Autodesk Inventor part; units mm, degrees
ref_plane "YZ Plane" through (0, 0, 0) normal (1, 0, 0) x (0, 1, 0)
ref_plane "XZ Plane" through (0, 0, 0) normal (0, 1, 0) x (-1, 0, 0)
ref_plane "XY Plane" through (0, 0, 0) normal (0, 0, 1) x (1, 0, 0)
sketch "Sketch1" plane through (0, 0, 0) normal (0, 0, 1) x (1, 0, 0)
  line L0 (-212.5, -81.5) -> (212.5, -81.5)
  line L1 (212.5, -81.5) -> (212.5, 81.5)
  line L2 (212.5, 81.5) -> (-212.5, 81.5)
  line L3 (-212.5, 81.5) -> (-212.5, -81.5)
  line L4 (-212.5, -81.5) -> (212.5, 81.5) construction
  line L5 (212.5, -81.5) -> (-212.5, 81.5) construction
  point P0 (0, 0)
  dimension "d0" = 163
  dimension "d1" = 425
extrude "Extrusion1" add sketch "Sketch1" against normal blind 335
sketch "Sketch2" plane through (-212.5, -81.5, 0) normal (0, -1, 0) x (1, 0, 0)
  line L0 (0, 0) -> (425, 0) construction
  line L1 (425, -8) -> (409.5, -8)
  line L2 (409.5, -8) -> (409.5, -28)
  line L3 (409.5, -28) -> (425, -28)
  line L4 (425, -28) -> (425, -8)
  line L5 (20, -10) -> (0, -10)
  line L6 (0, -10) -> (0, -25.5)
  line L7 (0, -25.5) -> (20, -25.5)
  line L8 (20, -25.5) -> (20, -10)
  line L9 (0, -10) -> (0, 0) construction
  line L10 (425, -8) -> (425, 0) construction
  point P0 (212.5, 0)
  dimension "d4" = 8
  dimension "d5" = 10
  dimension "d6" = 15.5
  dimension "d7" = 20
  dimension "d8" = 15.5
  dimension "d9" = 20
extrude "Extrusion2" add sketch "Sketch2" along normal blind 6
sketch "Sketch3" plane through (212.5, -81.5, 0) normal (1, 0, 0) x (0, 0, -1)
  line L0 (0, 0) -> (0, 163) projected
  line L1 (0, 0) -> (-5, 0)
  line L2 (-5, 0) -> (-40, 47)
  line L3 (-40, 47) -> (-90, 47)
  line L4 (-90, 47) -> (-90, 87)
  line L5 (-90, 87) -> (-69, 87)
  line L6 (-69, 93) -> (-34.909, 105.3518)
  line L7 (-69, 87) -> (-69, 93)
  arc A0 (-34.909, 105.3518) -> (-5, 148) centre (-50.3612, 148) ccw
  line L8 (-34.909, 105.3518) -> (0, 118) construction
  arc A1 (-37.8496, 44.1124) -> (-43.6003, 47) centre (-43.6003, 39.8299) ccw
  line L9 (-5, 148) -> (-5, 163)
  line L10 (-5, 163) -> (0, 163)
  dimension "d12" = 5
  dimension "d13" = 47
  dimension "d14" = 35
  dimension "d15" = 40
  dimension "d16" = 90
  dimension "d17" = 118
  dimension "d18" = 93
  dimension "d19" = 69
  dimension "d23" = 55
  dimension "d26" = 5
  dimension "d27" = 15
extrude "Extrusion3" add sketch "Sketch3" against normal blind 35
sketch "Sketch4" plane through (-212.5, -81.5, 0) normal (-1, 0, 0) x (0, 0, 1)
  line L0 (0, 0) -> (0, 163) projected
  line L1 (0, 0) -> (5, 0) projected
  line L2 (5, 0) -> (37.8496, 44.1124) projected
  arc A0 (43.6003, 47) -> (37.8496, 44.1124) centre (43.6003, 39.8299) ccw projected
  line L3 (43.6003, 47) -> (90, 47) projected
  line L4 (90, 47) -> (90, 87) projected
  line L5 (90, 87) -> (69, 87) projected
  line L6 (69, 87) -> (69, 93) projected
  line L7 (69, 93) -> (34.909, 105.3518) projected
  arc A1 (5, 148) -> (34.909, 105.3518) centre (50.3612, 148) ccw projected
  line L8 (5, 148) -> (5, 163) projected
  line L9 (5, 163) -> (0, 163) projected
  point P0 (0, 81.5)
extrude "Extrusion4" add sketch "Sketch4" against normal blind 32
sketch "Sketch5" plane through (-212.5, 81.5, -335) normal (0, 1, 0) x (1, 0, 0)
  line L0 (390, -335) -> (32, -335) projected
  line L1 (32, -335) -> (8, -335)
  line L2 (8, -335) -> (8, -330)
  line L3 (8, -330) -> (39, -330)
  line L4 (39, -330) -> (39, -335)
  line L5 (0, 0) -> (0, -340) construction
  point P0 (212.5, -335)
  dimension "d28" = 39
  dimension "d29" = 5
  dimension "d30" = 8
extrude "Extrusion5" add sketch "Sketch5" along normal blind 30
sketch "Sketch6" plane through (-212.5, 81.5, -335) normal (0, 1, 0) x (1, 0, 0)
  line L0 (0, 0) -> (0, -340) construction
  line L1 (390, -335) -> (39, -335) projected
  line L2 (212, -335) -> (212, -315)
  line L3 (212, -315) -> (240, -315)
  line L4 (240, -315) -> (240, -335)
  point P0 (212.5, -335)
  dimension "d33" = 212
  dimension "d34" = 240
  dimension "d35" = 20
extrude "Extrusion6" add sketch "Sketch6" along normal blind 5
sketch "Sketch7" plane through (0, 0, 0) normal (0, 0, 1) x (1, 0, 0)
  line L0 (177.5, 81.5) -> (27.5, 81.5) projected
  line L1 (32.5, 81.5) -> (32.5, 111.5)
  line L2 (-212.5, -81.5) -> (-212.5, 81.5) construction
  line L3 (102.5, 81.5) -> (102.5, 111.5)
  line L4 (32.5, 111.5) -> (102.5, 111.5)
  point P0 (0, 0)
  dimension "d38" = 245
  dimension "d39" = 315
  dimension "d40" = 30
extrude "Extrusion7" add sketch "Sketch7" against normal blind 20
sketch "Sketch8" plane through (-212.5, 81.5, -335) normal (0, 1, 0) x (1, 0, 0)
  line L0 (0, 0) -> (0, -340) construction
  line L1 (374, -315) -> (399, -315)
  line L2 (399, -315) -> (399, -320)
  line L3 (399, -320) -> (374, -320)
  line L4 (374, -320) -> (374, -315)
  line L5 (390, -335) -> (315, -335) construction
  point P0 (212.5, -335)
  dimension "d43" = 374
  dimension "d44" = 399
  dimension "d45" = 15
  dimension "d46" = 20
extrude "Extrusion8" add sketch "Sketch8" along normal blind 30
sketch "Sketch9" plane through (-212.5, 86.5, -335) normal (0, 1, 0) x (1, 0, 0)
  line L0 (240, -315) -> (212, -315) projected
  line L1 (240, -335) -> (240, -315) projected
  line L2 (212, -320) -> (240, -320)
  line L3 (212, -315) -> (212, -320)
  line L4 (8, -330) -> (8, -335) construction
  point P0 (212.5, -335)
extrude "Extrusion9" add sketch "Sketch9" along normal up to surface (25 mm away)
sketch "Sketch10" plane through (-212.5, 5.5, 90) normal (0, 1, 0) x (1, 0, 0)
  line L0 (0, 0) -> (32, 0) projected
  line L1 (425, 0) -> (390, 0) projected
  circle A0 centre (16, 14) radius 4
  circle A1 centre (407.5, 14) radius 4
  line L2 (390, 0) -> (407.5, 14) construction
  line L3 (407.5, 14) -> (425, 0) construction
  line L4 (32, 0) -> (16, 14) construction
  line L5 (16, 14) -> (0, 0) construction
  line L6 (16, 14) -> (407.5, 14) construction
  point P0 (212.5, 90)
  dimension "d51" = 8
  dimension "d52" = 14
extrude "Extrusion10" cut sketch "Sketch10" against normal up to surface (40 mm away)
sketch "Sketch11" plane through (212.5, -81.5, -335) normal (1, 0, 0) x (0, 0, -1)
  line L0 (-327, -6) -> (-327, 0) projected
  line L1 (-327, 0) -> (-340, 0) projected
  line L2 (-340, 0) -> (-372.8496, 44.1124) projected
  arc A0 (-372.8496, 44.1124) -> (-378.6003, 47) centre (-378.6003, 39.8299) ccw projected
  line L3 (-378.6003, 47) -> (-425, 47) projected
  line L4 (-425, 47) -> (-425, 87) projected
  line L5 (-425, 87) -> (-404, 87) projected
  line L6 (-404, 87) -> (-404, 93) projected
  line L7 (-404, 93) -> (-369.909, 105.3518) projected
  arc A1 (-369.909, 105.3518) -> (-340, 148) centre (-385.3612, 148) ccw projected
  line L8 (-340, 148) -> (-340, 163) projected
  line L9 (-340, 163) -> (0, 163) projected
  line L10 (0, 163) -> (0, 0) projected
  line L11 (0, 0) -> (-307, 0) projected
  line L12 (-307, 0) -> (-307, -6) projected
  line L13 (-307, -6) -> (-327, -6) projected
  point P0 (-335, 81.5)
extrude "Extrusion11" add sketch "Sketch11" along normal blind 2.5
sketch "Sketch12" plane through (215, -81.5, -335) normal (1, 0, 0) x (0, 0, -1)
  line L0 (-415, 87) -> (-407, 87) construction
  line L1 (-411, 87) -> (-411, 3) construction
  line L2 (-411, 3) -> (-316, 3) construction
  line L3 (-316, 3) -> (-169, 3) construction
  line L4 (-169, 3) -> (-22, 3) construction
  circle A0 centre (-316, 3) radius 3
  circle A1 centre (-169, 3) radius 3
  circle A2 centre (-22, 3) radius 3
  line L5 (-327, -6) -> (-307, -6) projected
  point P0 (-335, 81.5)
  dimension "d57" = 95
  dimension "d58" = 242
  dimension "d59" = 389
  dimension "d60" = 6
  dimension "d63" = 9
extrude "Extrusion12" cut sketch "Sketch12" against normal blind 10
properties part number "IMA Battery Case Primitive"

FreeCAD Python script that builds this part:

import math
import FreeCAD as App
import Part
import Sketcher
from FreeCAD import Vector


def add_polygon(sketch, points):
    """Adds a closed chain of lines whose ends are joined by coincident constraints."""
    first, n = sketch.GeometryCount, len(points)
    for a, b in zip(points, points[1:] + points[:1]):
        sketch.addGeometry(Part.LineSegment(App.Vector(*a, 0), App.Vector(*b, 0)), False)
    for i in range(n):
        sketch.addConstraint(Sketcher.Constraint("Coincident", first + i, 2, first + (i + 1) % n, 1))

doc = App.newDocument("Part")
body = doc.addObject("PartDesign::Body", "Body")

sketch1 = doc.addObject("Sketcher::SketchObject", "Sketch")
body.addObject(sketch1)
sketch1.AttachmentSupport = (doc.XY_Plane, [""])
sketch1.MapMode = "FlatFace"
add_polygon(sketch1, [(-212, 82), (-212, -82), (212, -82), (212, 82)])
sketch1.addConstraint([
    Sketcher.Constraint("Vertical", 0),
    Sketcher.Constraint("Horizontal", 1),
    Sketcher.Constraint("Vertical", 2),
    Sketcher.Constraint("Horizontal", 3),
    Sketcher.Constraint("Symmetric", 0, 2, 2, 2, -1, 1),
    Sketcher.Constraint("DistanceX", 1, 1, 1, 2, 425.0),
    Sketcher.Constraint("DistanceY", 0, 2, 0, 1, 163.0),
])
pad1 = doc.addObject("PartDesign::Pad", "Pad")
body.addObject(pad1)
pad1.Profile = sketch1
pad1.Length = 335
pad1.Reversed = True

sketch2 = doc.addObject("Sketcher::SketchObject", "Sketch001")
body.addObject(sketch2)
sketch2.AttachmentSupport = (doc.XZ_Plane, [""])
sketch2.MapMode = "FlatFace"
sketch2.AttachmentOffset = App.Placement(Vector(0, 0, 81.5), App.Rotation())
add_polygon(sketch2, [(212, -28), (212, -8), (197, -8), (197, -28)])
add_polygon(sketch2, [(-192, -26), (-192, -10), (-212, -10), (-212, -26)])
sketch2.addConstraint([
    Sketcher.Constraint("Vertical", 0),
    Sketcher.Constraint("Horizontal", 1),
    Sketcher.Constraint("Vertical", 2),
    Sketcher.Constraint("Horizontal", 3),
    Sketcher.Constraint("Vertical", 4),
    Sketcher.Constraint("Horizontal", 5),
    Sketcher.Constraint("Vertical", 6),
    Sketcher.Constraint("Horizontal", 7),
    Sketcher.Constraint("Equal", 7, 0),
    Sketcher.Constraint("Equal", 3, 4),
    Sketcher.Constraint("DistanceX", 5, 2, 5, 1, 20.0),
    Sketcher.Constraint("DistanceX", 1, 2, 1, 1, 15.5),
    Sketcher.Constraint("DistanceY", 0, 2, -1, 1, 8.0),
    Sketcher.Constraint("DistanceY", 4, 2, -1, 1, 10.0),
    Sketcher.Constraint("DistanceX", -1, 1, 1, 2, 197.0),
    Sketcher.Constraint("DistanceX", 4, 2, 0, 2, 405.0),
])
pad2 = doc.addObject("PartDesign::Pad", "Pad001")
body.addObject(pad2)
pad2.Profile = sketch2
pad2.Length = 6

sketch3 = doc.addObject("Sketcher::SketchObject", "Sketch002")
body.addObject(sketch3)
sketch3.AttachmentSupport = (doc.YZ_Plane, [""])
sketch3.MapMode = "FlatFace"
sketch3.AttachmentOffset = App.Placement(Vector(0, 0, 212.5), App.Rotation())
sketch3.addGeometry([
    Part.LineSegment(Vector(-82, 5, 0), Vector(-82, 0, 0)),
    Part.LineSegment(Vector(-82, 0, 0), Vector(82, 0, 0)),
    Part.LineSegment(Vector(82, 0, 0), Vector(82, 5, 0)),
    Part.LineSegment(Vector(82, 5, 0), Vector(66, 5, 0)),
    Part.ArcOfCircle(Part.Circle(Vector(66, 50, 0), Vector(0, 0, 1), 45), math.radians(-160), math.radians(-90)),
    Part.LineSegment(Vector(24, 35, 0), Vector(12, 69, 0)),
    Part.LineSegment(Vector(12, 69, 0), Vector(6, 69, 0)),
    Part.LineSegment(Vector(6, 69, 0), Vector(6, 90, 0)),
    Part.LineSegment(Vector(6, 90, 0), Vector(-34, 90, 0)),
    Part.LineSegment(Vector(-34, 90, 0), Vector(-34, 44, 0)),
    Part.ArcOfCircle(Part.Circle(Vector(-42, 44, 0), Vector(0, 0, 1), 7), math.radians(-53), math.radians(0)),
    Part.LineSegment(Vector(-37, 38, 0), Vector(-82, 5, 0)),
], False)
sketch3.addConstraint([
    Sketcher.Constraint("Coincident", 0, 2, 1, 1),
    Sketcher.Constraint("Coincident", 1, 2, 2, 1),
    Sketcher.Constraint("Coincident", 2, 2, 3, 1),
    Sketcher.Constraint("Tangent", 3, 2, 4, 2),
    Sketcher.Constraint("Tangent", 4, 1, 5, 1),
    Sketcher.Constraint("Coincident", 5, 2, 6, 1),
    Sketcher.Constraint("Coincident", 6, 2, 7, 1),
    Sketcher.Constraint("Coincident", 7, 2, 8, 1),
    Sketcher.Constraint("Coincident", 8, 2, 9, 1),
    Sketcher.Constraint("Tangent", 9, 2, 10, 2),
    Sketcher.Constraint("Tangent", 10, 1, 11, 1),
    Sketcher.Constraint("Coincident", 11, 2, 0, 1),
    Sketcher.Constraint("Vertical", 0),
    Sketcher.Constraint("Horizontal", 1),
    Sketcher.Constraint("Vertical", 2),
    Sketcher.Constraint("Horizontal", 3),
    Sketcher.Constraint("Horizontal", 6),
    Sketcher.Constraint("Vertical", 7),
    Sketcher.Constraint("Horizontal", 8),
    Sketcher.Constraint("Vertical", 9),
    Sketcher.Constraint("Symmetric", 0, 2, 1, 2, -1, 1),
    Sketcher.Constraint("Horizontal", 3, 2, 11, 2),
    Sketcher.Constraint("DistanceX", 3, 2, 3, 1, 15.0),
    Sketcher.Constraint("DistanceX", 8, 2, 8, 1, 40.0),
    Sketcher.Constraint("DistanceY", 0, 2, 0, 1, 5.0),
    Sketcher.Constraint("Distance", 11, 55.0),
    Sketcher.Constraint("DistanceY", -1, 1, 5, 2, 69.0),
    Sketcher.Constraint("DistanceY", -1, 1, 7, 2, 90.0),
    Sketcher.Constraint("DistanceX", 5, 2, 4, 3, 55.0),
    Sketcher.Constraint("DistanceX", 11, 2, 9, 2, 47.0),
    Sketcher.Constraint("DistanceX", 1, 1, 1, 2, 163.0),
    Sketcher.Constraint("Radius", 10, 7.17),
    Sketcher.Constraint("Radius", 4, 45.3612),
])
pad3 = doc.addObject("PartDesign::Pad", "Pad002")
body.addObject(pad3)
pad3.Profile = sketch3
pad3.Length = 35
pad3.Reversed = True

sketch4 = doc.addObject("Sketcher::SketchObject", "Sketch003")
body.addObject(sketch4)
sketch4.AttachmentSupport = (doc.YZ_Plane, [""])
sketch4.MapMode = "FlatFace"
sketch4.AttachmentOffset = App.Placement(Vector(0, 0, -212.5), App.Rotation())
sketch4.addGeometry([
    Part.LineSegment(Vector(82, 0, 0), Vector(-82, 0, 0)),
    Part.LineSegment(Vector(-82, 0, 0), Vector(-82, 5, 0)),
    Part.LineSegment(Vector(-82, 5, 0), Vector(-37, 38, 0)),
    Part.ArcOfCircle(Part.Circle(Vector(-42, 44, 0), Vector(0, 0, 1), 7), math.radians(-53), math.radians(0)),
    Part.LineSegment(Vector(-34, 44, 0), Vector(-34, 90, 0)),
    Part.LineSegment(Vector(-34, 90, 0), Vector(6, 90, 0)),
    Part.LineSegment(Vector(6, 90, 0), Vector(6, 69, 0)),
    Part.LineSegment(Vector(6, 69, 0), Vector(12, 69, 0)),
    Part.LineSegment(Vector(12, 69, 0), Vector(24, 35, 0)),
    Part.ArcOfCircle(Part.Circle(Vector(66, 50, 0), Vector(0, 0, 1), 45), math.radians(-160), math.radians(-90)),
    Part.LineSegment(Vector(66, 5, 0), Vector(82, 5, 0)),
    Part.LineSegment(Vector(82, 5, 0), Vector(82, 0, 0)),
], False)
sketch4.addConstraint([
    Sketcher.Constraint("Coincident", 0, 2, 1, 1),
    Sketcher.Constraint("Coincident", 1, 2, 2, 1),
    Sketcher.Constraint("Tangent", 2, 2, 3, 1),
    Sketcher.Constraint("Tangent", 3, 2, 4, 1),
    Sketcher.Constraint("Coincident", 4, 2, 5, 1),
    Sketcher.Constraint("Coincident", 5, 2, 6, 1),
    Sketcher.Constraint("Coincident", 6, 2, 7, 1),
    Sketcher.Constraint("Coincident", 7, 2, 8, 1),
    Sketcher.Constraint("Tangent", 8, 2, 9, 1),
    Sketcher.Constraint("Tangent", 9, 2, 10, 1),
    Sketcher.Constraint("Coincident", 10, 2, 11, 1),
    Sketcher.Constraint("Coincident", 11, 2, 0, 1),
    Sketcher.Constraint("Horizontal", 0),
    Sketcher.Constraint("Vertical", 1),
    Sketcher.Constraint("Vertical", 4),
    Sketcher.Constraint("Horizontal", 5),
    Sketcher.Constraint("Vertical", 6),
    Sketcher.Constraint("Horizontal", 7),
    Sketcher.Constraint("Horizontal", 10),
    Sketcher.Constraint("Vertical", 11),
    Sketcher.Constraint("Symmetric", 0, 2, 11, 2, -1, 1),
    Sketcher.Constraint("Horizontal", 1, 2, 9, 2),
    Sketcher.Constraint("DistanceX", 0, 2, 0, 1, 163.0),
    Sketcher.Constraint("DistanceX", 5, 1, 5, 2, 40.0),
    Sketcher.Constraint("DistanceX", 7, 1, 7, 2, 6.0),
    Sketcher.Constraint("DistanceX", 10, 1, 10, 2, 15.0),
    Sketcher.Constraint("DistanceY", 1, 1, 1, 2, 5.0),
    Sketcher.Constraint("DistanceY", 6, 2, 6, 1, 21.0),
    Sketcher.Constraint("Radius", 3, 7.17),
    Sketcher.Constraint("Distance", 2, 55.0),
    Sketcher.Constraint("DistanceY", -1, 1, 4, 2, 90.0),
    Sketcher.Constraint("DistanceX", 1, 2, 3, 2, 47.0),
    Sketcher.Constraint("Radius", 9, 45.3612),
])
pad4 = doc.addObject("PartDesign::Pad", "Pad003")
body.addObject(pad4)
pad4.Profile = sketch4
pad4.Length = 32

sketch5 = doc.addObject("Sketcher::SketchObject", "Sketch004")
body.addObject(sketch5)
sketch5.AttachmentSupport = (doc.XZ_Plane, [""])
sketch5.MapMode = "FlatFace"
sketch5.AttachmentOffset = App.Placement(Vector(0, 0, -81.5), App.Rotation())
add_polygon(sketch5, [(-204, 0), (-174, 0), (-174, -5), (-204, -5)])
sketch5.addConstraint([
    Sketcher.Constraint("Horizontal", 0),
    Sketcher.Constraint("Vertical", 1),
    Sketcher.Constraint("Horizontal", 2),
    Sketcher.Constraint("Vertical", 3),
    Sketcher.Constraint("PointOnObject", 0, 2, -1),
    Sketcher.Constraint("DistanceY", 1, 2, 1, 1, 5.0),
    Sketcher.Constraint("DistanceX", 0, 1, 0, 2, 31.0),
    Sketcher.Constraint("DistanceX", 0, 2, -1, 1, 173.5),
])
pad5 = doc.addObject("PartDesign::Pad", "Pad004")
body.addObject(pad5)
pad5.Profile = sketch5
pad5.Length = 30
pad5.Reversed = True

sketch6 = doc.addObject("Sketcher::SketchObject", "Sketch005")
body.addObject(sketch6)
sketch6.AttachmentSupport = (doc.XZ_Plane, [""])
sketch6.MapMode = "FlatFace"
sketch6.AttachmentOffset = App.Placement(Vector(0, 0, -81.5), App.Rotation())
add_polygon(sketch6, [(0, 0), (28, 0), (28, -20), (0, -20)])
sketch6.addConstraint([
    Sketcher.Constraint("Horizontal", 0),
    Sketcher.Constraint("Vertical", 1),
    Sketcher.Constraint("Horizontal", 2),
    Sketcher.Constraint("Vertical", 3),
    Sketcher.Constraint("PointOnObject", 0, 2, -1),
    Sketcher.Constraint("DistanceY", 1, 2, 1, 1, 20.0),
    Sketcher.Constraint("DistanceX", 0, 1, 0, 2, 28.0),
    Sketcher.Constraint("DistanceX", -1, 1, 0, 2, 27.5),
])
pad6 = doc.addObject("PartDesign::Pad", "Pad005")
body.addObject(pad6)
pad6.Profile = sketch6
pad6.Length = 5
pad6.Reversed = True

sketch7 = doc.addObject("Sketcher::SketchObject", "Sketch006")
body.addObject(sketch7)
sketch7.AttachmentSupport = (doc.XY_Plane, [""])
sketch7.MapMode = "FlatFace"
add_polygon(sketch7, [(32, 82), (102, 82), (102, 112), (32, 112)])
sketch7.addConstraint([
    Sketcher.Constraint("Horizontal", 0),
    Sketcher.Constraint("Vertical", 1),
    Sketcher.Constraint("Horizontal", 2),
    Sketcher.Constraint("Vertical", 3),
    Sketcher.Constraint("DistanceY", 1, 1, 1, 2, 30.0),
    Sketcher.Constraint("DistanceX", 0, 1, 0, 2, 70.0),
    Sketcher.Constraint("DistanceX", -1, 1, 0, 2, 102.5),
    Sketcher.Constraint("DistanceY", -1, 1, 0, 2, 81.5),
])
pad7 = doc.addObject("PartDesign::Pad", "Pad006")
body.addObject(pad7)
pad7.Profile = sketch7
pad7.Length = 20
pad7.Reversed = True

sketch8 = doc.addObject("Sketcher::SketchObject", "Sketch007")
body.addObject(sketch8)
sketch8.AttachmentSupport = (doc.XZ_Plane, [""])
sketch8.MapMode = "FlatFace"
sketch8.AttachmentOffset = App.Placement(Vector(0, 0, -81.5), App.Rotation())
add_polygon(sketch8, [(186, -20), (162, -20), (162, -15), (186, -15)])
sketch8.addConstraint([
    Sketcher.Constraint("Horizontal", 0),
    Sketcher.Constraint("Vertical", 1),
    Sketcher.Constraint("Horizontal", 2),
    Sketcher.Constraint("Vertical", 3),
    Sketcher.Constraint("DistanceY", 0, 2, -1, 1, 20.0),
    Sketcher.Constraint("DistanceY", 1, 2, -1, 1, 15.0),
    Sketcher.Constraint("DistanceX", 0, 2, 0, 1, 25.0),
    Sketcher.Constraint("DistanceX", -1, 1, 0, 2, 161.5),
])
pad8 = doc.addObject("PartDesign::Pad", "Pad007")
body.addObject(pad8)
pad8.Profile = sketch8
pad8.Length = 30
pad8.Reversed = True

sketch9 = doc.addObject("Sketcher::SketchObject", "Sketch008")
body.addObject(sketch9)
sketch9.AttachmentSupport = (doc.XZ_Plane, [""])
sketch9.MapMode = "FlatFace"
sketch9.AttachmentOffset = App.Placement(Vector(0, 0, -86.5), App.Rotation())
add_polygon(sketch9, [(28, -15), (28, -20), (0, -20), (0, -15)])
sketch9.addConstraint([
    Sketcher.Constraint("Vertical", 0),
    Sketcher.Constraint("Horizontal", 1),
    Sketcher.Constraint("Vertical", 2),
    Sketcher.Constraint("Horizontal", 3),
    Sketcher.Constraint("DistanceX", 1, 2, 1, 1, 28.0),
    Sketcher.Constraint("DistanceY", 0, 2, 0, 1, 5.0),
    Sketcher.Constraint("DistanceY", 0, 2, -1, 1, 20.0),
    Sketcher.Constraint("DistanceX", -1, 1, 0, 2, 27.5),
])
pad9 = doc.addObject("PartDesign::Pad", "Pad008")
body.addObject(pad9)
pad9.Profile = sketch9
pad9.Length = 25
pad9.Reversed = True

sketch10 = doc.addObject("Sketcher::SketchObject", "Sketch009")
body.addObject(sketch10)
sketch10.AttachmentSupport = (doc.XZ_Plane, [""])
sketch10.MapMode = "FlatFace"
sketch10.AttachmentOffset = App.Placement(Vector(0, 0, -5.5), App.Rotation())
sketch10.addGeometry([
    Part.Circle(Vector(-196.5, 76, 0), Vector(0, 0, 1), 4),
    Part.Circle(Vector(195, 76, 0), Vector(0, 0, 1), 4),
], False)
sketch10.addConstraint([
    Sketcher.Constraint("Equal", 0, 1),
    Sketcher.Constraint("Horizontal", 0, 3, 1, 3),
    Sketcher.Constraint("Diameter", 0, 8.0),
    Sketcher.Constraint("DistanceY", -1, 1, 0, 3, 76.0),
    Sketcher.Constraint("DistanceX", -1, 1, 1, 3, 195.0),
    Sketcher.Constraint("DistanceX", 0, 3, -1, 1, 196.5),
])
pocket1 = doc.addObject("PartDesign::Pocket", "Pocket")
body.addObject(pocket1)
pocket1.Profile = sketch10
pocket1.Length = 40
pocket1.Reversed = True

sketch11 = doc.addObject("Sketcher::SketchObject", "Sketch010")
body.addObject(sketch11)
sketch11.AttachmentSupport = (doc.YZ_Plane, [""])
sketch11.MapMode = "FlatFace"
sketch11.AttachmentOffset = App.Placement(Vector(0, 0, 212.5), App.Rotation())
sketch11.addGeometry([
    Part.LineSegment(Vector(-82, -8, 0), Vector(-88, -8, 0)),
    Part.LineSegment(Vector(-88, -8, 0), Vector(-88, -28, 0)),
    Part.LineSegment(Vector(-88, -28, 0), Vector(-82, -28, 0)),
    Part.LineSegment(Vector(-82, -28, 0), Vector(-82, -335, 0)),
    Part.LineSegment(Vector(-82, -335, 0), Vector(82, -335, 0)),
    Part.LineSegment(Vector(82, -335, 0), Vector(82, 5, 0)),
    Part.LineSegment(Vector(82, 5, 0), Vector(66, 5, 0)),
    Part.ArcOfCircle(Part.Circle(Vector(66, 50, 0), Vector(0, 0, 1), 45), math.radians(-160), math.radians(-90)),
    Part.LineSegment(Vector(24, 35, 0), Vector(12, 69, 0)),
    Part.LineSegment(Vector(12, 69, 0), Vector(6, 69, 0)),
    Part.LineSegment(Vector(6, 69, 0), Vector(6, 90, 0)),
    Part.LineSegment(Vector(6, 90, 0), Vector(-34, 90, 0)),
    Part.LineSegment(Vector(-34, 90, 0), Vector(-34, 44, 0)),
    Part.ArcOfCircle(Part.Circle(Vector(-42, 44, 0), Vector(0, 0, 1), 7), math.radians(-53), math.radians(0)),
    Part.LineSegment(Vector(-37, 38, 0), Vector(-82, 5, 0)),
    Part.LineSegment(Vector(-82, 5, 0), Vector(-82, -8, 0)),
], False)
sketch11.addConstraint([
    Sketcher.Constraint("Coincident", 0, 2, 1, 1),
    Sketcher.Constraint("Coincident", 1, 2, 2, 1),
    Sketcher.Constraint("Coincident", 2, 2, 3, 1),
    Sketcher.Constraint("Coincident", 3, 2, 4, 1),
    Sketcher.Constraint("Coincident", 4, 2, 5, 1),
    Sketcher.Constraint("Coincident", 5, 2, 6, 1),
    Sketcher.Constraint("Tangent", 6, 2, 7, 2),
    Sketcher.Constraint("Tangent", 7, 1, 8, 1),
    Sketcher.Constraint("Coincident", 8, 2, 9, 1),
    Sketcher.Constraint("Coincident", 9, 2, 10, 1),
    Sketcher.Constraint("Coincident", 10, 2, 11, 1),
    Sketcher.Constraint("Coincident", 11, 2, 12, 1),
    Sketcher.Constraint("Tangent", 12, 2, 13, 2),
    Sketcher.Constraint("Tangent", 13, 1, 14, 1),
    Sketcher.Constraint("Coincident", 14, 2, 15, 1),
    Sketcher.Constraint("Coincident", 15, 2, 0, 1),
    Sketcher.Constraint("Horizontal", 0),
    Sketcher.Constraint("Vertical", 1),
    Sketcher.Constraint("Horizontal", 2),
    Sketcher.Constraint("Vertical", 3),
    Sketcher.Constraint("Horizontal", 4),
    Sketcher.Constraint("Vertical", 5),
    Sketcher.Constraint("Horizontal", 6),
    Sketcher.Constraint("Horizontal", 9),
    Sketcher.Constraint("Vertical", 10),
    Sketcher.Constraint("Horizontal", 11),
    Sketcher.Constraint("Vertical", 12),
    Sketcher.Constraint("Vertical", 15),
    Sketcher.Constraint("Symmetric", 5, 2, 14, 2, -2),
    Sketcher.Constraint("Vertical", 3, 2, 14, 2),
    Sketcher.Constraint("Equal", 2, 9),
    Sketcher.Constraint("DistanceX", 0, 2, 0, 1, 6.0),
    Sketcher.Constraint("DistanceX", 4, 1, 4, 2, 163.0),
    Sketcher.Constraint("DistanceX", 6, 2, 6, 1, 15.0),
    Sketcher.Constraint("DistanceX", 11, 2, 11, 1, 40.0),
    Sketcher.Constraint("DistanceY", 1, 2, 1, 1, 20.0),
    Sketcher.Constraint("DistanceY", 3, 2, 3, 1, 307.0),
    Sketcher.Constraint("DistanceY", 5, 1, 5, 2, 340.0),
    Sketcher.Constraint("DistanceY", 10, 1, 10, 2, 21.0),
    Sketcher.Constraint("Radius", 13, 7.17),
    Sketcher.Constraint("Distance", 14, 55.0),
    Sketcher.Constraint("DistanceY", 0, 2, -1, 1, 8.0),
    Sketcher.Constraint("DistanceY", -1, 1, 8, 2, 69.0),
    Sketcher.Constraint("DistanceX", 8, 2, 7, 3, 55.0),
    Sketcher.Constraint("Radius", 7, 45.3612),
])
pad10 = doc.addObject("PartDesign::Pad", "Pad009")
body.addObject(pad10)
pad10.Profile = sketch11
pad10.Length = 2.5

sketch12 = doc.addObject("Sketcher::SketchObject", "Sketch011")
body.addObject(sketch12)
sketch12.AttachmentSupport = (doc.YZ_Plane, [""])
sketch12.MapMode = "FlatFace"
sketch12.AttachmentOffset = App.Placement(Vector(0, 0, 215), App.Rotation())
sketch12.addGeometry([
    Part.Circle(Vector(-78.5, -19, 0), Vector(0, 0, 1), 3),
    Part.Circle(Vector(-78.5, -166, 0), Vector(0, 0, 1), 3),
    Part.Circle(Vector(-78.5, -313, 0), Vector(0, 0, 1), 3),
], False)
sketch12.addConstraint([
    Sketcher.Constraint("Equal", 0, 1),
    Sketcher.Constraint("Equal", 1, 2),
    Sketcher.Constraint("Vertical", 0, 3, 1, 3),
    Sketcher.Constraint("Vertical", 1, 3, 2, 3),
    Sketcher.Constraint("Diameter", 0, 6.0),
    Sketcher.Constraint("DistanceY", 0, 3, -1, 1, 19.0),
    Sketcher.Constraint("DistanceY", 1, 3, -1, 1, 166.0),
    Sketcher.Constraint("DistanceY", 2, 3, -1, 1, 313.0),
    Sketcher.Constraint("DistanceX", 0, 3, -1, 1, 78.5),
])
pocket2 = doc.addObject("PartDesign::Pocket", "Pocket001")
body.addObject(pocket2)
pocket2.Profile = sketch12
pocket2.Length = 10

doc.recompute()
